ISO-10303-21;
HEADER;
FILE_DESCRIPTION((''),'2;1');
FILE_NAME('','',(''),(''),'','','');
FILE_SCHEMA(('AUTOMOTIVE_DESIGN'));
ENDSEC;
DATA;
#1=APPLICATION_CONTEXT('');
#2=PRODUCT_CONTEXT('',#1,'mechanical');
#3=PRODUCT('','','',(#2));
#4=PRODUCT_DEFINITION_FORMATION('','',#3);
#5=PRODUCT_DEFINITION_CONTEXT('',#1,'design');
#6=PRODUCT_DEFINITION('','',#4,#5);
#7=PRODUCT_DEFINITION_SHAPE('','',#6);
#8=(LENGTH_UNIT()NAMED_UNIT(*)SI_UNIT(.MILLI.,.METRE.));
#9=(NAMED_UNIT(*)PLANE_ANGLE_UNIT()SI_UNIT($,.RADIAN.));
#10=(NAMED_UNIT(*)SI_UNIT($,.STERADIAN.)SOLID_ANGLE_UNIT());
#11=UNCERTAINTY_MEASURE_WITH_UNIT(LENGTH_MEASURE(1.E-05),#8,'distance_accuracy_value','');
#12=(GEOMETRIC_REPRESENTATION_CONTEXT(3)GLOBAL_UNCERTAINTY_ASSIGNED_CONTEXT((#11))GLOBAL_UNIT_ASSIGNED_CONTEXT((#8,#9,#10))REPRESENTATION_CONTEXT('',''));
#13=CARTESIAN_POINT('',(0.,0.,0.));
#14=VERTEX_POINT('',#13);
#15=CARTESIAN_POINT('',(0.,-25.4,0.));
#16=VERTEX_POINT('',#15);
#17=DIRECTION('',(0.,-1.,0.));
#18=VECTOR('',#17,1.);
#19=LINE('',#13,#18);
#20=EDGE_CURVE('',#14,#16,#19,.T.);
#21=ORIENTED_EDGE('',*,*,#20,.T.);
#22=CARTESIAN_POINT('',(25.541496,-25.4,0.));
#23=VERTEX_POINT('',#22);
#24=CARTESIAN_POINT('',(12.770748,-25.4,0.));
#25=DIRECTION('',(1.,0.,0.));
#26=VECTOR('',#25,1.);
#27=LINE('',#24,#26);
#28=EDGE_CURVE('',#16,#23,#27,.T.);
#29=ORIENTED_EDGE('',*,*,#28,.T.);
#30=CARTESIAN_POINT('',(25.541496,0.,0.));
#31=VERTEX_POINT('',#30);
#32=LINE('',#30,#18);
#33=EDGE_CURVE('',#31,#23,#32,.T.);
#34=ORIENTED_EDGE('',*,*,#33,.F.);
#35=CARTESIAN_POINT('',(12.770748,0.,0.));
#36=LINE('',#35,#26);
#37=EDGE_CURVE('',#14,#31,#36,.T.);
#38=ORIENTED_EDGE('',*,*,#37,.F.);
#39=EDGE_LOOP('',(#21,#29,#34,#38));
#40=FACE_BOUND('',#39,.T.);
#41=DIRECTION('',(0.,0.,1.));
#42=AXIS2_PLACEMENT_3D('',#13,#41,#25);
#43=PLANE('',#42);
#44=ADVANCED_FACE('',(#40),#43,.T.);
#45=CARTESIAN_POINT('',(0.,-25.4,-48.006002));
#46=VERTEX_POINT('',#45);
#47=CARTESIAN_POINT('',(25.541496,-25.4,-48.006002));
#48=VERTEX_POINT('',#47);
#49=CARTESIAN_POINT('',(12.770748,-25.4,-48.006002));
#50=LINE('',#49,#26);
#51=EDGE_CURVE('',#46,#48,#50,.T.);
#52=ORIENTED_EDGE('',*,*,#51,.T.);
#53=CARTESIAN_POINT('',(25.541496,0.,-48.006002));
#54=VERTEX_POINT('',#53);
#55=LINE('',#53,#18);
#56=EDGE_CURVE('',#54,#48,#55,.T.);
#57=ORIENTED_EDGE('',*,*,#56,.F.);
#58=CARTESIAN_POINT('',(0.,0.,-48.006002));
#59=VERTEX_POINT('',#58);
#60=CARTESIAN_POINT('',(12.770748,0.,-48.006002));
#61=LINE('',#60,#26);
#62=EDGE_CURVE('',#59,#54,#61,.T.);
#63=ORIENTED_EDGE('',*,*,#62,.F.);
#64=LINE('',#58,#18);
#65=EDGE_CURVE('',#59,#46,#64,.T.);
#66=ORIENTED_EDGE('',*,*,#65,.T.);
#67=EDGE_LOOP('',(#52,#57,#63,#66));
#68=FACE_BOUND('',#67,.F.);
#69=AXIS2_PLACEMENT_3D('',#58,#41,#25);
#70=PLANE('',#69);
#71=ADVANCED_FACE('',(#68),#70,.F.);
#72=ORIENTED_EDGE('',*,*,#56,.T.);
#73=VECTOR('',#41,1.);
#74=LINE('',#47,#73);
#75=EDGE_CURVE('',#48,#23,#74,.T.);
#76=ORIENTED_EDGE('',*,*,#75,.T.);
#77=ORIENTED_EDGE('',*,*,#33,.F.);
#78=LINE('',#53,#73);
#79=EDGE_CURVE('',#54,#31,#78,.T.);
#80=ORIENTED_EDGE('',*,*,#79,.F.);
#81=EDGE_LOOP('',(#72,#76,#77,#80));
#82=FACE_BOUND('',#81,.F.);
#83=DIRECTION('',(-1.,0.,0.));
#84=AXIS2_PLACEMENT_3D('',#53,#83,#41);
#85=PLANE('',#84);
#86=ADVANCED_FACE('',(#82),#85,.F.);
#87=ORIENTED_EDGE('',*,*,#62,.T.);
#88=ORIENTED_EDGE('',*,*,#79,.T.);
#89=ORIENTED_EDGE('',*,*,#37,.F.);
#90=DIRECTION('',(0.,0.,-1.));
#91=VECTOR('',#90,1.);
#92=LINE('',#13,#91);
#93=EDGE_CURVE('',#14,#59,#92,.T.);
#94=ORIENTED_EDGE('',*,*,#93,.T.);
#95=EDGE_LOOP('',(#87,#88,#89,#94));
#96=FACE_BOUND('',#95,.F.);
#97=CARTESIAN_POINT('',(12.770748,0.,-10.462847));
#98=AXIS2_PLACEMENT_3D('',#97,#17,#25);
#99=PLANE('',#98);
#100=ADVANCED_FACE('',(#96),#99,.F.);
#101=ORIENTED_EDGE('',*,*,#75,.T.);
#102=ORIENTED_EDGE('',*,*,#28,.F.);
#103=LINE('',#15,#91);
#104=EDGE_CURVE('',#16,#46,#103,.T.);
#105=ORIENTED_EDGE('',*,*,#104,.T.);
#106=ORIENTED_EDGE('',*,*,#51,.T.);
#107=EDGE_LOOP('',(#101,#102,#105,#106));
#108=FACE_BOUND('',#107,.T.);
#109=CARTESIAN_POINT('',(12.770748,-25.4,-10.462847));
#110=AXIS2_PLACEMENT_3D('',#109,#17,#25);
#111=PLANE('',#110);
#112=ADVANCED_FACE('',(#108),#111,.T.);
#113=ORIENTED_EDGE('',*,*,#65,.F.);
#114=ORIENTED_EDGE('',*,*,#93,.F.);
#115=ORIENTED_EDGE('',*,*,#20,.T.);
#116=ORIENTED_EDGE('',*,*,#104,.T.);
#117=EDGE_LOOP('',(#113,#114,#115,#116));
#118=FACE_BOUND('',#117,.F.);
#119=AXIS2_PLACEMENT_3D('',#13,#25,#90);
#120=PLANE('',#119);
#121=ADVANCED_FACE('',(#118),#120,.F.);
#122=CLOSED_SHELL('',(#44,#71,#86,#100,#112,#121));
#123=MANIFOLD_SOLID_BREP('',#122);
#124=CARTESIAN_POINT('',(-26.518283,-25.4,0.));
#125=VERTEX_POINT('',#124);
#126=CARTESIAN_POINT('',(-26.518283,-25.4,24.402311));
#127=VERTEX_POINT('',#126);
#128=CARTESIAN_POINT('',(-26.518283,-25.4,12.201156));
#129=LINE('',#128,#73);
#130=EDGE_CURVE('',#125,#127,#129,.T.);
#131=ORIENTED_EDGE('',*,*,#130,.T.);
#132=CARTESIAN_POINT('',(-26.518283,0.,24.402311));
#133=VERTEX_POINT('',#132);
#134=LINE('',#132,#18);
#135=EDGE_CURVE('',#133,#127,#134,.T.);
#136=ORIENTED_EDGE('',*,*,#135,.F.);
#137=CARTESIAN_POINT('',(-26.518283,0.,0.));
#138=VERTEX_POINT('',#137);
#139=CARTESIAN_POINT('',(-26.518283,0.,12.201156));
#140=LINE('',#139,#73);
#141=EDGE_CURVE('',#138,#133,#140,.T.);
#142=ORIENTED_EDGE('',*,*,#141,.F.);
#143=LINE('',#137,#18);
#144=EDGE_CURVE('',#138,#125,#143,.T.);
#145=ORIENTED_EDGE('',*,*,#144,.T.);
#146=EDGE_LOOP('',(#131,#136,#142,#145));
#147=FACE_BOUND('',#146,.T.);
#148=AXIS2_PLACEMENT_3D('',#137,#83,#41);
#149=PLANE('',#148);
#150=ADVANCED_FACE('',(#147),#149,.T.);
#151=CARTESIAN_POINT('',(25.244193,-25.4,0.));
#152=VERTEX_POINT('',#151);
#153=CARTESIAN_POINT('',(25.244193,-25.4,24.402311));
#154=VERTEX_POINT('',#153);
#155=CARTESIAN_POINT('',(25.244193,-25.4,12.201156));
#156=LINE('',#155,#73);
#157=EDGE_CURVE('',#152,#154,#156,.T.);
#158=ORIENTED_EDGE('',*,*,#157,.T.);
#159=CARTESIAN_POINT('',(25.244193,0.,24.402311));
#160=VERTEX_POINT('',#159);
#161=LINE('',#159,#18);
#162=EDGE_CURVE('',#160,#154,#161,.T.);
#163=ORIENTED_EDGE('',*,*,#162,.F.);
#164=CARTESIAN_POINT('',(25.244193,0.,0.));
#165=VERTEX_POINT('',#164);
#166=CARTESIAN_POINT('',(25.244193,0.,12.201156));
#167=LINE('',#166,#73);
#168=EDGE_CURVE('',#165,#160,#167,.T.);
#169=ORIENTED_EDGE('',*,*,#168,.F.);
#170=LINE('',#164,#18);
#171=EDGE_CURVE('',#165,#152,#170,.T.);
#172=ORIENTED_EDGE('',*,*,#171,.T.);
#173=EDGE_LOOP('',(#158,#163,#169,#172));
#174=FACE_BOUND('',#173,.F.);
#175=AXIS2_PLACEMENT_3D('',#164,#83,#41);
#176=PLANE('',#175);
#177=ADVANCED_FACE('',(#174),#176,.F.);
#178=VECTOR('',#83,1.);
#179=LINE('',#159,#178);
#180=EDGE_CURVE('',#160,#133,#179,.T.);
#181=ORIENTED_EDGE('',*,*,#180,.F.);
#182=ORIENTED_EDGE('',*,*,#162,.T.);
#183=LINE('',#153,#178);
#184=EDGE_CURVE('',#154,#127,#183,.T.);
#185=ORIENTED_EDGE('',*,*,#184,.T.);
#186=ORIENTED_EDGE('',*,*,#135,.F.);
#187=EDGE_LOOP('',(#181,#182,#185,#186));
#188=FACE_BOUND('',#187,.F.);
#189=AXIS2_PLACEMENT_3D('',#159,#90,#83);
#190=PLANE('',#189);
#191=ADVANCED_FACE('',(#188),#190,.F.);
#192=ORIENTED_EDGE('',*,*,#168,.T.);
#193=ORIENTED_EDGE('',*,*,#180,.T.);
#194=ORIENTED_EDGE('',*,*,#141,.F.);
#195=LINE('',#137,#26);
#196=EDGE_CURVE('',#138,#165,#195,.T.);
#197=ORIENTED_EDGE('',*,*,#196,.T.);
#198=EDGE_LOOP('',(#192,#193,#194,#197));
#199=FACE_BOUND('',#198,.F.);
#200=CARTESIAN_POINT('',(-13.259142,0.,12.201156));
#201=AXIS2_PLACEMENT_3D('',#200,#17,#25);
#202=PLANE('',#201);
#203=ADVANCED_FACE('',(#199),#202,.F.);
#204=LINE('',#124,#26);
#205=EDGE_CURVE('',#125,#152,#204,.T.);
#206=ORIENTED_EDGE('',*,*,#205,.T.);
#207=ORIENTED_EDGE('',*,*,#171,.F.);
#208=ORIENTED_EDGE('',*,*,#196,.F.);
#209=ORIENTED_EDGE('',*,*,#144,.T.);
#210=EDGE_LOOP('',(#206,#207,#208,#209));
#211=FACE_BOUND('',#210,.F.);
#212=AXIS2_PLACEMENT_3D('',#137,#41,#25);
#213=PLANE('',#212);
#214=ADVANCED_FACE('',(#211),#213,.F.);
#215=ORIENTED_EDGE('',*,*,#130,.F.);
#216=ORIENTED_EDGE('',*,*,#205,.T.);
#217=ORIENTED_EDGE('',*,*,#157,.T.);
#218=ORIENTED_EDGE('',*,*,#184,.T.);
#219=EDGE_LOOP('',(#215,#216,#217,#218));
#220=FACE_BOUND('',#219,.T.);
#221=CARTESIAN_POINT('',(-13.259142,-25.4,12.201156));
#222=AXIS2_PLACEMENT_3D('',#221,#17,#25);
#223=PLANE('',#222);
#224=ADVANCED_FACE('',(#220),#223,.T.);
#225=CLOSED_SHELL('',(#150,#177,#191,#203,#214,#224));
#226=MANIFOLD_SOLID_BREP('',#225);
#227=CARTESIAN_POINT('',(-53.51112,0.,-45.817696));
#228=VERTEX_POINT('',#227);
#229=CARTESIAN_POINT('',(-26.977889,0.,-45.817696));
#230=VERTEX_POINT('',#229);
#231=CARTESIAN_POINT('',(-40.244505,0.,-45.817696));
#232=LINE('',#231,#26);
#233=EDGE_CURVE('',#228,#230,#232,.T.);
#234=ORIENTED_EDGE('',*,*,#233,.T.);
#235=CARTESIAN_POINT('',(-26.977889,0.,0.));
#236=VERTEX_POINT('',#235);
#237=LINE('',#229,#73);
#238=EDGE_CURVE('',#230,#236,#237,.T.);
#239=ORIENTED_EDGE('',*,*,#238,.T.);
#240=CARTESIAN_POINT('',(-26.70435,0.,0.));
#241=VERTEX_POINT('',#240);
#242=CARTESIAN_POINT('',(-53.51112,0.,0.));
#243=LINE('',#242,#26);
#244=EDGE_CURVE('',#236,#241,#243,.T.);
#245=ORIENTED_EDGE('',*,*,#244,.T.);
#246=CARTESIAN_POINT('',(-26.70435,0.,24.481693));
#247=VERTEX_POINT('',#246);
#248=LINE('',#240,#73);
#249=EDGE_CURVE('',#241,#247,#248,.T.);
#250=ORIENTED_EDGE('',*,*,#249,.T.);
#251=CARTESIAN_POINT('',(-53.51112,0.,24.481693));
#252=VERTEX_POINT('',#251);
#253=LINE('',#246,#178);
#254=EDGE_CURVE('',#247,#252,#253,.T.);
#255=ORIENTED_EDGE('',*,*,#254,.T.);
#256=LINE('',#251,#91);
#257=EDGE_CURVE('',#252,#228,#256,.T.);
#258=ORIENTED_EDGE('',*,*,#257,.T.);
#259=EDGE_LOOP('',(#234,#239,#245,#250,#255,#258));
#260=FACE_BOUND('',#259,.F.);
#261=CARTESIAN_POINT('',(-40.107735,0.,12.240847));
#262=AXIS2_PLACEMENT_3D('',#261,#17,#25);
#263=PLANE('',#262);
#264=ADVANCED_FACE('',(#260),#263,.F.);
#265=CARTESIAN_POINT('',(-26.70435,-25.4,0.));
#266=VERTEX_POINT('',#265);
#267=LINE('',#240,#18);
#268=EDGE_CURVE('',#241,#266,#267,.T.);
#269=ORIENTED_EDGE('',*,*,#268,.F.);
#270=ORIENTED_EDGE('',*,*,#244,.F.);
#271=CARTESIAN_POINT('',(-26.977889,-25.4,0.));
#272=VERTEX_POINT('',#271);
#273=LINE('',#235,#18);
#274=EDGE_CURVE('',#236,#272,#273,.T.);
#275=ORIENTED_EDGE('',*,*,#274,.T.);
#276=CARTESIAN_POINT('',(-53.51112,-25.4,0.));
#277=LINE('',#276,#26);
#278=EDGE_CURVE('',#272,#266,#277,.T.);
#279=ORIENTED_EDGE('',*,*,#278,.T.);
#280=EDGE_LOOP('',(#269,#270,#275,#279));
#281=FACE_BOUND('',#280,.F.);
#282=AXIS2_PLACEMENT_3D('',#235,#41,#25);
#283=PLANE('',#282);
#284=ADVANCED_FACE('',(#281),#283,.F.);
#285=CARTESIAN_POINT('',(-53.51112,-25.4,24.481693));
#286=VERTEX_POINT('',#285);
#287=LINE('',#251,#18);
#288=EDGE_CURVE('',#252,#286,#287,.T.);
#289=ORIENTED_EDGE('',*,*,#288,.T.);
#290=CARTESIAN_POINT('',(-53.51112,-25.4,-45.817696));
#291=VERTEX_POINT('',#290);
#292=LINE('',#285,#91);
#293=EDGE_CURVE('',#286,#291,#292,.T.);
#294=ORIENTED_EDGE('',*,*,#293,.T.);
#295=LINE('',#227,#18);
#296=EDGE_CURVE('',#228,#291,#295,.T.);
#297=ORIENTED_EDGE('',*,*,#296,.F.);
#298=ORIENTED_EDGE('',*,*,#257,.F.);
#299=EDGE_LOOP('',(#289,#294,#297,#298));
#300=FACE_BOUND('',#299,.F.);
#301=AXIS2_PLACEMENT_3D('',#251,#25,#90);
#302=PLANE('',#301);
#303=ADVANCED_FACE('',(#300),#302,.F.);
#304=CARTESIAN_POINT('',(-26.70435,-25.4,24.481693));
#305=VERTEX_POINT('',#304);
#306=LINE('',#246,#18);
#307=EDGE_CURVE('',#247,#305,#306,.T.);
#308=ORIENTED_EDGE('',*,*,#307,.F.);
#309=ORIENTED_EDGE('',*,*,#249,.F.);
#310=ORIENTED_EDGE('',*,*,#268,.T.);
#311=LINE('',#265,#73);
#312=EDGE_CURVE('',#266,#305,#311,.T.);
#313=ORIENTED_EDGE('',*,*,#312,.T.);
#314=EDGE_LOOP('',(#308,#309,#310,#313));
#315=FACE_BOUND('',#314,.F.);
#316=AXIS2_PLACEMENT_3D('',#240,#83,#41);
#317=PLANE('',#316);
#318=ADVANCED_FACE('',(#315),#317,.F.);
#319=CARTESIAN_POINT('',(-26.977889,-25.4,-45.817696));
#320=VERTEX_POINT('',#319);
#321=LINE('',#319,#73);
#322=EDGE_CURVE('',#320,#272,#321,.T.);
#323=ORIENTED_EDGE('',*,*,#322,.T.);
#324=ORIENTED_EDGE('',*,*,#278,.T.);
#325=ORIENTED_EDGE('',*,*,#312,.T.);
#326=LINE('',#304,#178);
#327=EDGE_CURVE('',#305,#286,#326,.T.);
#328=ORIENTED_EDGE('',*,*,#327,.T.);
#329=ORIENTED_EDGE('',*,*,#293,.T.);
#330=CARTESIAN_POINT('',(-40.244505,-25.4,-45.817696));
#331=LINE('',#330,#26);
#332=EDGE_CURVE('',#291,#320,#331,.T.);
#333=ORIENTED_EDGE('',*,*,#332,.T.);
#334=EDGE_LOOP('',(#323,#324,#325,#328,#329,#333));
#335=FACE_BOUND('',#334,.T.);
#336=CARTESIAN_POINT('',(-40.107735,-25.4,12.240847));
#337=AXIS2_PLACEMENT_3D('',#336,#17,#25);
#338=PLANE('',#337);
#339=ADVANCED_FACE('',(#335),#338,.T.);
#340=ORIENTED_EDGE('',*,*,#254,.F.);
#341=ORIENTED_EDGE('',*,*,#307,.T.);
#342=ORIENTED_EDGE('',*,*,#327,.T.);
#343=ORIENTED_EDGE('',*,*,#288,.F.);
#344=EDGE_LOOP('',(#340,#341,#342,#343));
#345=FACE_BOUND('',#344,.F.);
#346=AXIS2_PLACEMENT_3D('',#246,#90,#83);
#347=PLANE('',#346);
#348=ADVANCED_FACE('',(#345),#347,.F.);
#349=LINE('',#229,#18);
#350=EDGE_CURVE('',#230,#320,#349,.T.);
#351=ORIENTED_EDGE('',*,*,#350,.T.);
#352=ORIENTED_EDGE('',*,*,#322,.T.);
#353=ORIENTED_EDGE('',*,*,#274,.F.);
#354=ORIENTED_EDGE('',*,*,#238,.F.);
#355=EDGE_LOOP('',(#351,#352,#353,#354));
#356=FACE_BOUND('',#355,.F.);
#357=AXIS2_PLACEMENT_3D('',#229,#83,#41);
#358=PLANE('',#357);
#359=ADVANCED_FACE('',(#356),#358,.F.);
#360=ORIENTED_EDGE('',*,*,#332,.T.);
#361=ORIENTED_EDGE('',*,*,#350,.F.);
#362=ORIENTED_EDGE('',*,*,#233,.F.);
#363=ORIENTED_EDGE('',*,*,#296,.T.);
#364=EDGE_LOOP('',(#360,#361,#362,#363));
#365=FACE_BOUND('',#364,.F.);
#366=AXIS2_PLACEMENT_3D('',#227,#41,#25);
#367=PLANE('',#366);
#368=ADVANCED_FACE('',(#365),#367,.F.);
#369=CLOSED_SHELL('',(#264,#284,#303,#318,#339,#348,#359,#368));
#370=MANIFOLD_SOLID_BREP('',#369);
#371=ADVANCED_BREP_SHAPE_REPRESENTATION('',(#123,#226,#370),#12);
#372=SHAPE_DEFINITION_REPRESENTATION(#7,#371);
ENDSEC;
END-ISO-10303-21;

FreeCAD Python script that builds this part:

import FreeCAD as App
import Part
import Sketcher
from FreeCAD import Vector
Q = App.Units.Quantity


def add_polygon(sketch, points):
    """Adds a closed chain of lines whose ends are joined by coincident constraints."""
    first, n = sketch.GeometryCount, len(points)
    for a, b in zip(points, points[1:] + points[:1]):
        sketch.addGeometry(Part.LineSegment(App.Vector(*a, 0), App.Vector(*b, 0)), False)
    for i in range(n):
        sketch.addConstraint(Sketcher.Constraint("Coincident", first + i, 2, first + (i + 1) % n, 1))

doc = App.newDocument("Part")
params = doc.addObject("Spreadsheet::Sheet", "Params")
for row, (alias, value) in enumerate([
    ("pad1_length", "1 in"),
    ("sketch2_height", "1.8900001 in"),
    ("pad2_length", "1 in"),
    ("pad3_length", "1 in"),
], start=1):
    params.set(f"A{row}", alias)
    params.set(f"B{row}", "=" + value)
    params.setAlias(f"B{row}", alias)

body = doc.addObject("PartDesign::Body", "Body")

# Sketch on XZ plane
sketch1 = body.newObject("Sketcher::SketchObject", "Sketch")
sketch1.AttachmentSupport = (doc.getObject("XZ_Plane"), [""])
sketch1.MapMode = "FlatFace"
add_polygon(sketch1, [(-26.7, 0), (-26.7, 24.48), (-53.51, 24.48), (-53.51, -45.82), (-26.98, -45.82), (-26.98, 0)])  # lines 0-5
sketch1.addConstraint([
    Sketcher.Constraint("Vertical", 0),
    Sketcher.Constraint("Horizontal", 1),
    Sketcher.Constraint("Vertical", 2),
    Sketcher.Constraint("Horizontal", 3),
    Sketcher.Constraint("Vertical", 4),
    Sketcher.Constraint("Horizontal", 5),
    Sketcher.Constraint("PointOnObject", 4, 2, -1),
    Sketcher.Constraint("DistanceX", 1, 2, 1, 1, 26.80677),
    Sketcher.Constraint("DistanceX", 3, 1, 3, 2, 26.533231),
    Sketcher.Constraint("DistanceY", 2, 2, 2, 1, 70.299389),
    Sketcher.Constraint("DistanceY", 0, 1, 0, 2, 24.481693),
    Sketcher.Constraint("DistanceX", 0, 2, -1, 1, 26.70435),
])
pad1 = body.newObject("PartDesign::Pad", "Pad")
pad1.Profile = sketch1
pad1.setExpression("Length", "Params.pad1_length")
body2 = doc.addObject("PartDesign::Body", "Body001")

# Sketch on XZ plane
sketch2 = body2.newObject("Sketcher::SketchObject", "Sketch001")
sketch2.AttachmentSupport = (doc.getObject("XZ_Plane001"), [""])
sketch2.MapMode = "FlatFace"
add_polygon(sketch2, [(0, 0), (0, -48), (26, -48), (26, 0)])  # lines 0-3
sketch2.addConstraint([
    Sketcher.Constraint("Vertical", 0),
    Sketcher.Constraint("Horizontal", 1),
    Sketcher.Constraint("Vertical", 2),
    Sketcher.Constraint("Horizontal", 3),
    Sketcher.Constraint("Coincident", 3, 2, -1, 1),
    Sketcher.Constraint("DistanceY", 0, 2, 0, 1, Q("1.8900001 in")),
    Sketcher.Constraint("DistanceX", 1, 1, 1, 2, 25.541496),
])
sketch2.setExpression("Constraints[9]", "Params.sketch2_height")
pad2 = body2.newObject("PartDesign::Pad", "Pad001")
pad2.Profile = sketch2
pad2.setExpression("Length", "Params.pad2_length")
body3 = doc.addObject("PartDesign::Body", "Body002")

# Sketch on XZ plane
sketch3 = body3.newObject("Sketcher::SketchObject", "Sketch002")
sketch3.AttachmentSupport = (doc.getObject("XZ_Plane002"), [""])
sketch3.MapMode = "FlatFace"
add_polygon(sketch3, [(-27, 24), (-27, 0), (25, 0), (25, 24)])  # lines 0-3
sketch3.addConstraint([
    Sketcher.Constraint("Vertical", 0),
    Sketcher.Constraint("Horizontal", 1),
    Sketcher.Constraint("Vertical", 2),
    Sketcher.Constraint("Horizontal", 3),
    Sketcher.Constraint("PointOnObject", 0, 2, -1),
    Sketcher.Constraint("DistanceY", 0, 2, 0, 1, 24.402311),
    Sketcher.Constraint("DistanceX", 1, 1, 1, 2, 51.762477),
    Sketcher.Constraint("DistanceX", 0, 2, -1, 1, 26.518283),
])
pad3 = body3.newObject("PartDesign::Pad", "Pad002")
pad3.Profile = sketch3
pad3.setExpression("Length", "Params.pad3_length")

doc.recompute()
